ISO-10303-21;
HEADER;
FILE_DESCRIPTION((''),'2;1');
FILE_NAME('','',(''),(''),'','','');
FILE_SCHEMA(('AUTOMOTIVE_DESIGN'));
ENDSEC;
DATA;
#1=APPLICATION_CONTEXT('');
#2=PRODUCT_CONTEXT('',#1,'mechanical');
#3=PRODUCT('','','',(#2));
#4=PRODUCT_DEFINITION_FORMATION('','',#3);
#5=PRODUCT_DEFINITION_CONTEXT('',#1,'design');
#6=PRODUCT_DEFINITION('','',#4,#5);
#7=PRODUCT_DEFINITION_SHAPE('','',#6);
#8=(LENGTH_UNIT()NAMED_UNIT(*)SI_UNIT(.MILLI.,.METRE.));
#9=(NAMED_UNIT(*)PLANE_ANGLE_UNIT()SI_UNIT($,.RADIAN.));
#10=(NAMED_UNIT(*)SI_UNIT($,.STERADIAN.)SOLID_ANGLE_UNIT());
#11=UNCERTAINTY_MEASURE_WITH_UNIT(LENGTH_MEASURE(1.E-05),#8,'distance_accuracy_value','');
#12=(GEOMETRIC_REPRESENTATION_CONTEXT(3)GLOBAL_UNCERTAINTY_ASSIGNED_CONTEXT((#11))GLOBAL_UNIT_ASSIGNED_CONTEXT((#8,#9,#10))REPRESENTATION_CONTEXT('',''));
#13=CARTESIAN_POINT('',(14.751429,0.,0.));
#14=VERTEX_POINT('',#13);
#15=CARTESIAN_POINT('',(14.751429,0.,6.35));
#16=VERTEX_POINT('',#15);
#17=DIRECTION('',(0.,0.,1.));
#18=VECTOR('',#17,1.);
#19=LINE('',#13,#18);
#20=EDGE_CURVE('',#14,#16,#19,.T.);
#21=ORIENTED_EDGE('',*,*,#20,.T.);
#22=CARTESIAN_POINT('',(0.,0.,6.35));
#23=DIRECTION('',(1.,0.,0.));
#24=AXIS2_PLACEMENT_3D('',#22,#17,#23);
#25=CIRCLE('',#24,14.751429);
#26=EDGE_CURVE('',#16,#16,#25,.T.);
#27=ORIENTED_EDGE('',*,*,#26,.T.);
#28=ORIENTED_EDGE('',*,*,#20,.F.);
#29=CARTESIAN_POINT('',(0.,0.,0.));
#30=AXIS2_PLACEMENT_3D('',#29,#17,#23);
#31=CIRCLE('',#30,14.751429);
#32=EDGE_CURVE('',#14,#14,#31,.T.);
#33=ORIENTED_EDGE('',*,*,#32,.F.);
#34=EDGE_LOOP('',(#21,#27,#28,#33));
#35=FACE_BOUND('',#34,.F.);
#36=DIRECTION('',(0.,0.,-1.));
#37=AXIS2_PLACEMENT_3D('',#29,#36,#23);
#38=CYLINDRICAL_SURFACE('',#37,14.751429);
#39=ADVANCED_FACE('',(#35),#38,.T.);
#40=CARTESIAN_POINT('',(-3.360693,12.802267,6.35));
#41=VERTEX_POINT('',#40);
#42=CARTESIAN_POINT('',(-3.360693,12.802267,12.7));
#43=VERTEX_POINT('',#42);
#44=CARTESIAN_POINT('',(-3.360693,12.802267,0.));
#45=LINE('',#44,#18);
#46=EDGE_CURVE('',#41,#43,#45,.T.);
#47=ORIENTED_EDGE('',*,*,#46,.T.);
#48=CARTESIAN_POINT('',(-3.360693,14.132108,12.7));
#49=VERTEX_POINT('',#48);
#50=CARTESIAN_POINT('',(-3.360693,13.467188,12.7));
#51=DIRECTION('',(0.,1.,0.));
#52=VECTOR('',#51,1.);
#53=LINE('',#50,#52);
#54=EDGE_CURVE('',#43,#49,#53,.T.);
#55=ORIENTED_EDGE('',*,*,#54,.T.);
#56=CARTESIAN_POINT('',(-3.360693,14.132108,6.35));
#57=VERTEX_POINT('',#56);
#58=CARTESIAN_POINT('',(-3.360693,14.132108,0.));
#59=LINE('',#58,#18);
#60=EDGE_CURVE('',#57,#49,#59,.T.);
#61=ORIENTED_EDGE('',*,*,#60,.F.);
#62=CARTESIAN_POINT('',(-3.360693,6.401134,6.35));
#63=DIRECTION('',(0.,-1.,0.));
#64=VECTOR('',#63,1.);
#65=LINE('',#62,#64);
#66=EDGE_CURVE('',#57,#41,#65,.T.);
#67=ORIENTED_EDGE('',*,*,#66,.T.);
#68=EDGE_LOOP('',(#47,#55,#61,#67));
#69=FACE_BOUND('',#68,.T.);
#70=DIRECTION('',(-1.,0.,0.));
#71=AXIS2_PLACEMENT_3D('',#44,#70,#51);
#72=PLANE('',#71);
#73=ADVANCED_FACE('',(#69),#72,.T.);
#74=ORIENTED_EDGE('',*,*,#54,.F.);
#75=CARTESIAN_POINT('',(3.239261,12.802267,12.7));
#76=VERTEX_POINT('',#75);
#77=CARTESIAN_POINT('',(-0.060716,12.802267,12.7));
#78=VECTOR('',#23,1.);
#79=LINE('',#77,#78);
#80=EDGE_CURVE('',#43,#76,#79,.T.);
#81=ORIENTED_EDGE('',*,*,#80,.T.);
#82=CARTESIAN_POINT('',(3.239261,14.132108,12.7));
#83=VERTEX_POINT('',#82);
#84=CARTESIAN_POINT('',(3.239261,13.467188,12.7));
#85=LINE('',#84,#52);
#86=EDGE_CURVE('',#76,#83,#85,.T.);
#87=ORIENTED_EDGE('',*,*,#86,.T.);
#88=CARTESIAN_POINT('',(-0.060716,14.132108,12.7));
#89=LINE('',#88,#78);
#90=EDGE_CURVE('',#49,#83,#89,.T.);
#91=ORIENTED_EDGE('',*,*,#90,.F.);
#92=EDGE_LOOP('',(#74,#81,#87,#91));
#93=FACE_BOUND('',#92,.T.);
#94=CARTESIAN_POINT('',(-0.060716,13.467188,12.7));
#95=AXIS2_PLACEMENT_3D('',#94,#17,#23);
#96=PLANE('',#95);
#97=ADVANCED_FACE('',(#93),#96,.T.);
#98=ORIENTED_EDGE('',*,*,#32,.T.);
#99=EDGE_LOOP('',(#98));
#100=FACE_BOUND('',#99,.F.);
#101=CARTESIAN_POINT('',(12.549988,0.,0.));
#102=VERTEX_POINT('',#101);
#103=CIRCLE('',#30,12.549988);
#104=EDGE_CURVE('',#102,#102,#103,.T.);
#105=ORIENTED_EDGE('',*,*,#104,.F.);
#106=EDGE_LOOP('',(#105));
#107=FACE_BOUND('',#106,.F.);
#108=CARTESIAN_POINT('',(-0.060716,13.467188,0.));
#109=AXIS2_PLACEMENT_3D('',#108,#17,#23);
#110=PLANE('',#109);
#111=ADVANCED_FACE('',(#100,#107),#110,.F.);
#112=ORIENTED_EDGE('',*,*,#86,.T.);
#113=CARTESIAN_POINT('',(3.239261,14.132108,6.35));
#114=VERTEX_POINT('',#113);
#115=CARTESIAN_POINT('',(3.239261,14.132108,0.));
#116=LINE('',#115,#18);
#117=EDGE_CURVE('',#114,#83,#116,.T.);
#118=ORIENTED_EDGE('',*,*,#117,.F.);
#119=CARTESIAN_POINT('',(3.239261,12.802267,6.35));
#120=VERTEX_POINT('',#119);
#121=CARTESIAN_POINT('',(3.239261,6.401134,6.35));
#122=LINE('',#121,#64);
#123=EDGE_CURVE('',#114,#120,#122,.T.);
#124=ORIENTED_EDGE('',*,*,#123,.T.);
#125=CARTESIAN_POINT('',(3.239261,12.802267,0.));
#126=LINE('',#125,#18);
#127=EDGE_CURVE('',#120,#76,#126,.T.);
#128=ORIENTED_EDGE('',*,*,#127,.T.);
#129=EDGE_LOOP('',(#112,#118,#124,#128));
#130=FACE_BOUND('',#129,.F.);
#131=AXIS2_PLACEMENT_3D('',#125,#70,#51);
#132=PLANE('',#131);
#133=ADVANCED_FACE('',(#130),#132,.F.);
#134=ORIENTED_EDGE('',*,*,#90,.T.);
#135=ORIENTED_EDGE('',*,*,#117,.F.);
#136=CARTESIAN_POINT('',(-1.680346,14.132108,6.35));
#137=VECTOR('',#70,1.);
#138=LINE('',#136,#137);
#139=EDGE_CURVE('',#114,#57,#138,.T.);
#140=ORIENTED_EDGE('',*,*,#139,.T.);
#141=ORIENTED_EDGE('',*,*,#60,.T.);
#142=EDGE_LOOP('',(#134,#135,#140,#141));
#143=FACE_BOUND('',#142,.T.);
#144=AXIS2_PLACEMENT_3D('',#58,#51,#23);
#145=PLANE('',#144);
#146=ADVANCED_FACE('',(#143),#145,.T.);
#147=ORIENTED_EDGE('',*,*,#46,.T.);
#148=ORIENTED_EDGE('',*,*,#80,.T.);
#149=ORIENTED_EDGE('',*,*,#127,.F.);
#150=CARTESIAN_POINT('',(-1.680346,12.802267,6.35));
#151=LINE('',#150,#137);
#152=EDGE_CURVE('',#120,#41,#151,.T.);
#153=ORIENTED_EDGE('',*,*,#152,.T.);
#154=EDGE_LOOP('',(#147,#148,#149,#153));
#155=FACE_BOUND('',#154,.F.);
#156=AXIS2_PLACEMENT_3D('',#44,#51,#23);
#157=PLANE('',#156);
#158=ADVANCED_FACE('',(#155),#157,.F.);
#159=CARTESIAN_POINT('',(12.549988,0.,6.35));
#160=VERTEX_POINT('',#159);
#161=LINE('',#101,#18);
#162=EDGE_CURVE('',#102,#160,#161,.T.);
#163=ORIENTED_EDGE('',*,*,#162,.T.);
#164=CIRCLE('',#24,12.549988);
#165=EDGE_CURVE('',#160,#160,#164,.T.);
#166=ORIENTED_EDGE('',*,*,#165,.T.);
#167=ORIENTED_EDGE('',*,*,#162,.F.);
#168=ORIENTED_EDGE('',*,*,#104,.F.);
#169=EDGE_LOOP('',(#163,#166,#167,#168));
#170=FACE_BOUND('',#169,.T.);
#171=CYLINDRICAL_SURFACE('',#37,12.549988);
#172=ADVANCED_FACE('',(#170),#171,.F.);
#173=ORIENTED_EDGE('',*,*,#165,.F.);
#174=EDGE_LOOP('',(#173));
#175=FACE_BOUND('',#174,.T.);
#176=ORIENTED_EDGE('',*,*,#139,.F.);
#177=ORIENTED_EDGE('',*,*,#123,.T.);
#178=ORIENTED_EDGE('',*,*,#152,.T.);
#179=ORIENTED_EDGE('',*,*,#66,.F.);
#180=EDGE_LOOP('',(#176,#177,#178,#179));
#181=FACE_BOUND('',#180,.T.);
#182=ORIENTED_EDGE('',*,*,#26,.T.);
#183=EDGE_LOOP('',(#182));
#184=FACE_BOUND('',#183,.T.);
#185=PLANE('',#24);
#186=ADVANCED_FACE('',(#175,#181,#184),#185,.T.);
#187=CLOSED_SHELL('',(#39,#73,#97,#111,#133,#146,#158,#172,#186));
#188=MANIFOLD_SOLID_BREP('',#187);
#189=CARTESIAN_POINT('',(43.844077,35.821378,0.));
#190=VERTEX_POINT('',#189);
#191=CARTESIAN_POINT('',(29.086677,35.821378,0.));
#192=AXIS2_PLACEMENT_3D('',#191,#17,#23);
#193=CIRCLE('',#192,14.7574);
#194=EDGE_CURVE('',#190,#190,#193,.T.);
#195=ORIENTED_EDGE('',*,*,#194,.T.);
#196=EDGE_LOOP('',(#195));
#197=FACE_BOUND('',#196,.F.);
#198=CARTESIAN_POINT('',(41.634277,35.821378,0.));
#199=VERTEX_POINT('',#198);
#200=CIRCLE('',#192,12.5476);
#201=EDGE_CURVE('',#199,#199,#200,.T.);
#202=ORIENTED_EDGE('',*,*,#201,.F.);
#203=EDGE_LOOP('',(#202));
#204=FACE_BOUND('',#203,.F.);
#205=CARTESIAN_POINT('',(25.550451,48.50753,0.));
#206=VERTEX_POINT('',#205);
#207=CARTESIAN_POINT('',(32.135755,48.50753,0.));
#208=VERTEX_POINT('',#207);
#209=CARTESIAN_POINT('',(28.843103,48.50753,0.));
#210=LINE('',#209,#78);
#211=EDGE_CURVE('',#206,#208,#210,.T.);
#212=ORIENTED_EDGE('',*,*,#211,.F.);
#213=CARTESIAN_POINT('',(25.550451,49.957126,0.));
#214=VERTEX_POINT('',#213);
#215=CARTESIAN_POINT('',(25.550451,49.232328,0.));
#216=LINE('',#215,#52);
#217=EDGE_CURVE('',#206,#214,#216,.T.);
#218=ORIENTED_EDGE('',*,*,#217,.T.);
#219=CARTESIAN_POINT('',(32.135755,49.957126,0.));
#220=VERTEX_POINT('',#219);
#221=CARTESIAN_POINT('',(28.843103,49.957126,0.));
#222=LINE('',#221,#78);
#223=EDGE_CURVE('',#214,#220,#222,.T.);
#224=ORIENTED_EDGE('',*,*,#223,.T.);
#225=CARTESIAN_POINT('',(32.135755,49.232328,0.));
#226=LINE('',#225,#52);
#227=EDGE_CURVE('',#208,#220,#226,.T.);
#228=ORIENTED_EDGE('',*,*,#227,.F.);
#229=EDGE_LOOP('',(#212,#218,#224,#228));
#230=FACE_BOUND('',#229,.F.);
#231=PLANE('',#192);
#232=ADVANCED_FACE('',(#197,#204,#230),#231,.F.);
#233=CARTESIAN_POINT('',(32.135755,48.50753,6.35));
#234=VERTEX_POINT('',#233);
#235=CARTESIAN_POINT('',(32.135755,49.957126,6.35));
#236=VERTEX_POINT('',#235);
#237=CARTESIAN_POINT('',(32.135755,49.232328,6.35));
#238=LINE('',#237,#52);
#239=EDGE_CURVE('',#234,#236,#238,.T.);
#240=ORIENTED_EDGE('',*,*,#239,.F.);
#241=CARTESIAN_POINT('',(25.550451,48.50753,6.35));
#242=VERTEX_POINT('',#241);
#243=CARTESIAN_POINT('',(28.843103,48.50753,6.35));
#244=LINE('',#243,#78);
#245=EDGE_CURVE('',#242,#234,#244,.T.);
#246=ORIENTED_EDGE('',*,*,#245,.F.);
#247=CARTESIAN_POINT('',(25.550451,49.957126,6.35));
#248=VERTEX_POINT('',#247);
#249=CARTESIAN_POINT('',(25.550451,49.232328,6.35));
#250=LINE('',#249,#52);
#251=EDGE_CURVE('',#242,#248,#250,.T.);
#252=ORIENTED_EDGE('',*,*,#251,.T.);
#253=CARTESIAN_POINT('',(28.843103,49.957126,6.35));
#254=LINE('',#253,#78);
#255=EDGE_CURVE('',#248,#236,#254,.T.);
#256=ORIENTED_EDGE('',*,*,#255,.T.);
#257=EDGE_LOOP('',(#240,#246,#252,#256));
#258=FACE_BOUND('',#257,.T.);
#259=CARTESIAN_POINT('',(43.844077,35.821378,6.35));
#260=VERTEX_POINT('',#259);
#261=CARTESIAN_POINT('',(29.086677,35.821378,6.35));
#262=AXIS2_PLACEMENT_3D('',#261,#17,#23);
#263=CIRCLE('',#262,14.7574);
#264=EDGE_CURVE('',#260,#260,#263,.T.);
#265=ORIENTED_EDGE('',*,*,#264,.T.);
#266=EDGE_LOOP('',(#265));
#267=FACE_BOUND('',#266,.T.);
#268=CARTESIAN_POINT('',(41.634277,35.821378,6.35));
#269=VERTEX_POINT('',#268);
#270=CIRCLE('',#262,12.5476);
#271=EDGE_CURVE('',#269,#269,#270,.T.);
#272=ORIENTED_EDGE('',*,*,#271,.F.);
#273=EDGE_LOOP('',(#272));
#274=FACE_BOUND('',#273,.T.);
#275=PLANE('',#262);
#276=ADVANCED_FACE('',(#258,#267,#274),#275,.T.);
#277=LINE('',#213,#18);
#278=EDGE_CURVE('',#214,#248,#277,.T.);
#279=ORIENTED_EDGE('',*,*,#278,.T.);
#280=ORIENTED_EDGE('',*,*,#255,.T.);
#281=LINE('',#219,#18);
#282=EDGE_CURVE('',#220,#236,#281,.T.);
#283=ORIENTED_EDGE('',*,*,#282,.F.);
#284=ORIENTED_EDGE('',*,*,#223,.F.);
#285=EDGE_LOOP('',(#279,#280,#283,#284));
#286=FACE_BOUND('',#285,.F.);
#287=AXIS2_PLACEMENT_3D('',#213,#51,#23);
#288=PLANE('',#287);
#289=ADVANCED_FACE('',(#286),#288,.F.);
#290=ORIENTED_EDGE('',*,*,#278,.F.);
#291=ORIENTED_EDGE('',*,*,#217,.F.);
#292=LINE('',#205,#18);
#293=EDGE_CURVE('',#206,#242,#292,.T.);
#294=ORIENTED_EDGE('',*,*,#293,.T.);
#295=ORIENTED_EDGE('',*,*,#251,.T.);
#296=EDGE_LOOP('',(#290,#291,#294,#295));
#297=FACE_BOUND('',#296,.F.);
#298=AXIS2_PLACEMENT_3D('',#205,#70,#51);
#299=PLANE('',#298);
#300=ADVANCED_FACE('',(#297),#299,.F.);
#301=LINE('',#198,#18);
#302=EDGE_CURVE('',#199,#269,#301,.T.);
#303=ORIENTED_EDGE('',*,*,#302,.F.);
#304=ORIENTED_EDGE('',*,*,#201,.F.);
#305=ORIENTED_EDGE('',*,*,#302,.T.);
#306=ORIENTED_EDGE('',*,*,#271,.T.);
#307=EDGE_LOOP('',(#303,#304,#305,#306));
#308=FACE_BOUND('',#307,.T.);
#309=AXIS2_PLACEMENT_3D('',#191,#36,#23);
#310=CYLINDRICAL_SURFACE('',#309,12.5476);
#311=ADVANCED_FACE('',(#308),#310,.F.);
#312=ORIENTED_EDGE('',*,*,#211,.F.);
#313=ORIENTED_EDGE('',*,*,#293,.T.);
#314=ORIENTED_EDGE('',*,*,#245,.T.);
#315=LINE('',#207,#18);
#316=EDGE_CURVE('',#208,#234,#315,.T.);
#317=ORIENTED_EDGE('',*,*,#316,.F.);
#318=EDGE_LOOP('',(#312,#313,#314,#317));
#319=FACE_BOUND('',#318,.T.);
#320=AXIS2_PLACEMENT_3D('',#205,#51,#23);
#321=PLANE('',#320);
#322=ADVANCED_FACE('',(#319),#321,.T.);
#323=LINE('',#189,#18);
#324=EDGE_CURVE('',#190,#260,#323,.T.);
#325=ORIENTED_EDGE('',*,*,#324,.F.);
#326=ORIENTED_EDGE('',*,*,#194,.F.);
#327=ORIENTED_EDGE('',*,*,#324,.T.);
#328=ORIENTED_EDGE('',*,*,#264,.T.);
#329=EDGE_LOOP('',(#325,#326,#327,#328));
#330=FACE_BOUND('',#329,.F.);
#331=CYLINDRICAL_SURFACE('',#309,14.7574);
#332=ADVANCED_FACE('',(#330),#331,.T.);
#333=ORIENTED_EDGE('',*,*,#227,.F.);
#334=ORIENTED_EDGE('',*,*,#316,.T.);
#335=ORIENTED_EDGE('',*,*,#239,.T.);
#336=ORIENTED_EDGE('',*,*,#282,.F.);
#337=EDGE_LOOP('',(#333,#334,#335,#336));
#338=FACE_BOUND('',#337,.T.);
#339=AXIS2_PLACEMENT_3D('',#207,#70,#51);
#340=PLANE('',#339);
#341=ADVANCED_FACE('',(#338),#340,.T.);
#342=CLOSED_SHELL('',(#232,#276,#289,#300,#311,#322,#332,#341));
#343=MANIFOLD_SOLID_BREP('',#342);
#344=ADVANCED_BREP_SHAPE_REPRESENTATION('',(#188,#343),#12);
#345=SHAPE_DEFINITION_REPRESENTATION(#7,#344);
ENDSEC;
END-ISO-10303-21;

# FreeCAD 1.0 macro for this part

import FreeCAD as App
import Part
import Sketcher
Q = App.Units.Quantity

doc = App.newDocument("Part")
params = doc.addObject("Spreadsheet::Sheet", "Params")
for row, (alias, value) in enumerate([
    ("sketch1_diameter", "1.162 in"),
    ("sketch1_diameter2", "0.988 in"),
    ("pad1_length", "0.25 in"),
    ("pad2_length", "0.5 in"),
], start=1):
    params.set(f"A{row}", alias)
    params.set(f"B{row}", "=" + value)
    params.setAlias(f"B{row}", alias)

body = doc.addObject("PartDesign::Body", "Body")
body.AllowCompound = True

# Sketch on XY plane
sketch1 = doc.addObject("Sketcher::SketchObject", "Sketch")
body.addObject(sketch1)
sketch1.AttachmentSupport = (doc.XY_Plane, [""])
sketch1.MapMode = "FlatFace"
sketch1.addGeometry([
    Part.Circle(App.Vector(0, 0, 0), App.Vector(0, 0, 1), 14.751429),  # 0
    Part.Circle(App.Vector(0, 0, 0), App.Vector(0, 0, 1), 12.549988),  # 1
    Part.Circle(App.Vector(29.086677, 35.821378, 0), App.Vector(0, 0, 1), 14.7574),  # 2
    Part.Circle(App.Vector(29.086677, 35.821378, 0), App.Vector(0, 0, 1), 12.5476),  # 3
    Part.LineSegment(App.Vector(32.135755, 48.50753, 0), App.Vector(25.550451, 48.50753, 0)),  # 4
    Part.LineSegment(App.Vector(25.550451, 48.50753, 0), App.Vector(25.550451, 49.957126, 0)),  # 5
    Part.LineSegment(App.Vector(25.550451, 49.957126, 0), App.Vector(32.135755, 49.957126, 0)),  # 6
    Part.LineSegment(App.Vector(32.135755, 49.957126, 0), App.Vector(32.135755, 48.50753, 0)),  # 7
], False)
sketch1.addConstraint([
    Sketcher.Constraint("Coincident", 4, 2, 5, 1),
    Sketcher.Constraint("Coincident", 5, 2, 6, 1),
    Sketcher.Constraint("Coincident", 6, 2, 7, 1),
    Sketcher.Constraint("Coincident", 7, 2, 4, 1),
    Sketcher.Constraint("Horizontal", 4),
    Sketcher.Constraint("Vertical", 5),
    Sketcher.Constraint("Horizontal", 6),
    Sketcher.Constraint("Vertical", 7),
    Sketcher.Constraint("Coincident", 0, 3, -1, 1),
    Sketcher.Constraint("Coincident", 1, 3, -1, 1),
    Sketcher.Constraint("Coincident", 3, 3, 2, 3),
    Sketcher.Constraint("Diameter", 2, Q("1.162 in")),
    Sketcher.Constraint("Diameter", 3, Q("0.988 in")),
    Sketcher.Constraint("Diameter", 0, Q("29.502858 mm")),
    Sketcher.Constraint("Diameter", 1, Q("25.099976 mm")),
    Sketcher.Constraint("DistanceX", 4, 2, 4, 1, Q("6.585304 mm")),
    Sketcher.Constraint("DistanceY", 5, 1, 5, 2, Q("1.449596 mm")),
    Sketcher.Constraint("DistanceY", -1, 1, 2, 3, Q("35.821378 mm")),
    Sketcher.Constraint("DistanceX", -1, 1, 4, 2, Q("25.550451 mm")),
    Sketcher.Constraint("DistanceY", -1, 1, 4, 2, Q("48.50753 mm")),
    Sketcher.Constraint("DistanceX", 2, 3, 6, 2, Q("3.049078 mm")),
])
sketch1.setExpression("Constraints[11]", "Params.sketch1_diameter")
sketch1.setExpression("Constraints[12]", "Params.sketch1_diameter2")
pad1 = doc.addObject("PartDesign::Pad", "Pad")
body.addObject(pad1)
pad1.Profile = sketch1
pad1.setExpression("Length", "Params.pad1_length")

# Sketch on XY plane
sketch2 = doc.addObject("Sketcher::SketchObject", "Sketch001")
body.addObject(sketch2)
sketch2.AttachmentSupport = (doc.XY_Plane, [""])
sketch2.MapMode = "FlatFace"
sketch2.addGeometry([
    Part.LineSegment(App.Vector(-3.360693, 14.132108, 0), App.Vector(-3.360693, 12.802267, 0)),
    Part.LineSegment(App.Vector(-3.360693, 12.802267, 0), App.Vector(3.239261, 12.802267, 0)),
    Part.LineSegment(App.Vector(3.239261, 12.802267, 0), App.Vector(3.239261, 14.132108, 0)),
    Part.LineSegment(App.Vector(3.239261, 14.132108, 0), App.Vector(-3.360693, 14.132108, 0)),
], False)
sketch2.addConstraint([
    Sketcher.Constraint("Coincident", 0, 2, 1, 1),
    Sketcher.Constraint("Coincident", 1, 2, 2, 1),
    Sketcher.Constraint("Coincident", 2, 2, 3, 1),
    Sketcher.Constraint("Coincident", 3, 2, 0, 1),
    Sketcher.Constraint("Vertical", 0),
    Sketcher.Constraint("Horizontal", 1),
    Sketcher.Constraint("Vertical", 2),
    Sketcher.Constraint("Horizontal", 3),
    Sketcher.Constraint("DistanceY", 0, 2, 0, 1, Q("1.329841 mm")),
    Sketcher.Constraint("DistanceX", 1, 1, 1, 2, Q("6.599954 mm")),
    Sketcher.Constraint("DistanceX", -1, 1, 1, 2, Q("3.239261 mm")),
    Sketcher.Constraint("DistanceY", -1, 1, 2, 2, Q("14.132108 mm")),
])
pad2 = doc.addObject("PartDesign::Pad", "Pad001")
body.addObject(pad2)
pad2.Profile = sketch2
pad2.setExpression("Length", "Params.pad2_length")

doc.recompute()
